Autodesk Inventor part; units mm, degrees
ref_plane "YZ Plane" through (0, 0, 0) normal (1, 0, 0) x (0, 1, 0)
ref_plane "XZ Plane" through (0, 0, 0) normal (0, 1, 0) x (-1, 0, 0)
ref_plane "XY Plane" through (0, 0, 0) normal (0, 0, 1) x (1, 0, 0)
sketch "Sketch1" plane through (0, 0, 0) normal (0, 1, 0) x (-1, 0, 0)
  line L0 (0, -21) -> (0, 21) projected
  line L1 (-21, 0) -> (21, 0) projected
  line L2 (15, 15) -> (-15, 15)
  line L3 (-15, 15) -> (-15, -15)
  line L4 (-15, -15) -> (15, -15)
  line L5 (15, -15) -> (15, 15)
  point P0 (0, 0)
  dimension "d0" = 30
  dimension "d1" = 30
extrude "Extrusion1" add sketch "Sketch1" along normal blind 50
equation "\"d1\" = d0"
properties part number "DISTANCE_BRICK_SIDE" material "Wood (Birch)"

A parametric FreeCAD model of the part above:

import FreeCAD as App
import Part
import Sketcher

V = App.Vector

doc = App.newDocument("Part")
params = doc.addObject("Spreadsheet::Sheet", "Params")
for row, (alias, value) in enumerate([
    ("sketch1_width", "30 mm"),
    ("pad1_length", "50 mm"),
], start=1):
    params.set(f"A{row}", alias)
    params.set(f"B{row}", "=" + value)
    params.setAlias(f"B{row}", alias)

body = doc.addObject("PartDesign::Body", "Body")

# Sketch on XZ plane
sketch1 = body.newObject("Sketcher::SketchObject", "Sketch")
sketch1.AttachmentSupport = (doc.getObject("XZ_Plane"), [""])
sketch1.MapMode = "FlatFace"
sketch1.addGeometry([
    Part.LineSegment(V(15, -15, 0), V(-15, -15, 0)),
    Part.LineSegment(V(-15, -15, 0), V(-15, 15, 0)),
    Part.LineSegment(V(-15, 15, 0), V(15, 15, 0)),
    Part.LineSegment(V(15, 15, 0), V(15, -15, 0)),
], False)
sketch1.addConstraint([
    Sketcher.Constraint("Coincident", 0, 2, 1, 1),
    Sketcher.Constraint("Coincident", 1, 2, 2, 1),
    Sketcher.Constraint("Coincident", 2, 2, 3, 1),
    Sketcher.Constraint("Coincident", 3, 2, 0, 1),
    Sketcher.Constraint("Horizontal", 0),
    Sketcher.Constraint("Vertical", 1),
    Sketcher.Constraint("Horizontal", 2),
    Sketcher.Constraint("Vertical", 3),
    Sketcher.Constraint("Symmetric", 0, 2, 2, 2, -1, 1),
    Sketcher.Constraint("Equal", 2, 1),
    Sketcher.Constraint("DistanceX", 0, 2, 0, 1, 30.0),
])
sketch1.setExpression("Constraints[10]", "Params.sketch1_width")
pad1 = body.newObject("PartDesign::Pad", "Pad")
pad1.Profile = sketch1
pad1.setExpression("Length", "Params.pad1_length")
pad1.Reversed = True

doc.recompute()
